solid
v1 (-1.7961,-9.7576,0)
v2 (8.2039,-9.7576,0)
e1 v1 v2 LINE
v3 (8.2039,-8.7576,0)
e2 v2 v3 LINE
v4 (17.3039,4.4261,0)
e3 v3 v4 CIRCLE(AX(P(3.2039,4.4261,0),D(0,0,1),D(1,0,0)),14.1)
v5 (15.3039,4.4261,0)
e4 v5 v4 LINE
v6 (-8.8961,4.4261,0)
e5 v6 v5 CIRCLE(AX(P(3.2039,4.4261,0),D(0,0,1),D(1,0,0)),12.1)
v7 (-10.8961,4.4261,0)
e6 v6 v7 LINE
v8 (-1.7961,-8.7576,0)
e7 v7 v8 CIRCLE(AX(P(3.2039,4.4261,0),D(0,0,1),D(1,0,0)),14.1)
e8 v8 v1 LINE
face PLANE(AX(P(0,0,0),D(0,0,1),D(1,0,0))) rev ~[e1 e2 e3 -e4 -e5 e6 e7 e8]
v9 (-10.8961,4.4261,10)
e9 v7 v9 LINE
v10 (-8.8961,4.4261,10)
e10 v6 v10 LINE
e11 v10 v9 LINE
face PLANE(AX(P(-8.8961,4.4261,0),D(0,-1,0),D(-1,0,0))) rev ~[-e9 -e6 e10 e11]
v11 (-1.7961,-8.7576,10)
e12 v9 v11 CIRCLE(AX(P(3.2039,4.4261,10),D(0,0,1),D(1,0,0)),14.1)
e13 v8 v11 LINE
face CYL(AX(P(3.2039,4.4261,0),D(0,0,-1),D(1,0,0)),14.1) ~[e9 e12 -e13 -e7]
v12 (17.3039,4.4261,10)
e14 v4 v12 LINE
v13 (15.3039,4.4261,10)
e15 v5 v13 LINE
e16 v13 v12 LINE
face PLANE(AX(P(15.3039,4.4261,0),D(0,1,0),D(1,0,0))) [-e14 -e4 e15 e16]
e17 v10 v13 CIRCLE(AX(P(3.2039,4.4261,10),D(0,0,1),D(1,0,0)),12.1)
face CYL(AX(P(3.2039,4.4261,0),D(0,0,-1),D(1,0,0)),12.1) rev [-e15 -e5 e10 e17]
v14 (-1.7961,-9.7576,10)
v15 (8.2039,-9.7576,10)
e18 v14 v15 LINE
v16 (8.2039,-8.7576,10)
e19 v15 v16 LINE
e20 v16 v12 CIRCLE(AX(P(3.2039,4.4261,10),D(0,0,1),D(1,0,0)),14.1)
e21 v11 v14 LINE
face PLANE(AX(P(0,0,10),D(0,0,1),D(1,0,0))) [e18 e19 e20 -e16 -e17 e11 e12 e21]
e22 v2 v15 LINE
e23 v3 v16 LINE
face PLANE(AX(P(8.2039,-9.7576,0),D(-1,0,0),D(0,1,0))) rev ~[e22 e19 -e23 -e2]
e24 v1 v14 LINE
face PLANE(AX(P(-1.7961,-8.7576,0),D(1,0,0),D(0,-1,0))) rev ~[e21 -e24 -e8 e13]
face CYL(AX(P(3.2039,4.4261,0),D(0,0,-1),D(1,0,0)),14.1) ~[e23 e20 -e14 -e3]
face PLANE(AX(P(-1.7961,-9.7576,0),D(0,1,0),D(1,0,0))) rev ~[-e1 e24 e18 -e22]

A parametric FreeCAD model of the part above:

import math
import FreeCAD as App
import Part
import Sketcher

V = App.Vector
Q = App.Units.Quantity

doc = App.newDocument("Part")
params = doc.addObject("Spreadsheet::Sheet", "Params")
for row, (alias, value) in enumerate([
    ("sketch1_radius", "14.1 mm"),
    ("sketch1_radius2", "12.1 mm"),
    ("sketch1_width", "10 mm"),
    ("sketch1_height", "1 mm"),
    ("pad1_length", "10 mm"),
], start=1):
    params.set(f"A{row}", alias)
    params.set(f"B{row}", "=" + value)
    params.setAlias(f"B{row}", alias)

body = doc.addObject("PartDesign::Body", "Body")

# Sketch on XY plane
sketch1 = body.newObject("Sketcher::SketchObject", "Sketch")
sketch1.AttachmentSupport = (doc.getObject("XY_Plane"), [""])
sketch1.MapMode = "FlatFace"
sketch1.addGeometry([
    Part.ArcOfCircle(Part.Circle(V(3.2, 4.4, 0), V(0, 0, 1), 14.1), math.radians(-69), math.radians(0)),  # 0
    Part.LineSegment(V(17.3, 4.4, 0), V(15.3, 4.4, 0)),  # 1
    Part.ArcOfCircle(Part.Circle(V(3.2, 4.4, 0), V(0, 0, 1), 12.1), math.radians(180), math.radians(360)),  # 2
    Part.LineSegment(V(-8.9, 4.4, 0), V(-10.9, 4.4, 0)),  # 3
    Part.ArcOfCircle(Part.Circle(V(3.2, 4.4, 0), V(0, 0, 1), 14.1), math.radians(180), math.radians(249)),  # 4
    Part.LineSegment(V(-1.8, -8.8, 0), V(-1.8, -9.8, 0)),  # 5
    Part.LineSegment(V(-1.8, -9.8, 0), V(8.2, -9.8, 0)),  # 6
    Part.LineSegment(V(8.2, -9.8, 0), V(8.2, -8.8, 0)),  # 7
], False)
sketch1.addConstraint([
    Sketcher.Constraint("Coincident", 0, 2, 1, 1),
    Sketcher.Constraint("Coincident", 1, 2, 2, 2),
    Sketcher.Constraint("Coincident", 2, 1, 3, 1),
    Sketcher.Constraint("Coincident", 3, 2, 4, 1),
    Sketcher.Constraint("Coincident", 4, 2, 5, 1),
    Sketcher.Constraint("Coincident", 5, 2, 6, 1),
    Sketcher.Constraint("Coincident", 6, 2, 7, 1),
    Sketcher.Constraint("Coincident", 7, 2, 0, 1),
    Sketcher.Constraint("Horizontal", 1),
    Sketcher.Constraint("Horizontal", 3),
    Sketcher.Constraint("Vertical", 5),
    Sketcher.Constraint("Horizontal", 6),
    Sketcher.Constraint("Vertical", 7),
    Sketcher.Constraint("Coincident", 2, 3, 0, 3),
    Sketcher.Constraint("Coincident", 4, 3, 0, 3),
    Sketcher.Constraint("Equal", 0, 4),
    Sketcher.Constraint("Horizontal", 4, 3, 0, 2),
    Sketcher.Constraint("Horizontal", 1, 2, 2, 1),
    Sketcher.Constraint("Horizontal", 4, 2, 7, 2),
    Sketcher.Constraint("Radius", 0, Q("14.1 mm")),
    Sketcher.Constraint("Radius", 2, Q("12.1 mm")),
    Sketcher.Constraint("DistanceX", 6, 1, 6, 2, Q("10 mm")),
    Sketcher.Constraint("DistanceY", 5, 2, 5, 1, Q("1 mm")),
    Sketcher.Constraint("DistanceX", -1, 1, 0, 3, Q("3.204 mm")),
    Sketcher.Constraint("DistanceY", -1, 1, 0, 3, Q("4.426 mm")),
])
sketch1.setExpression("Constraints[19]", "Params.sketch1_radius")
sketch1.setExpression("Constraints[20]", "Params.sketch1_radius2")
sketch1.setExpression("Constraints[21]", "Params.sketch1_width")
sketch1.setExpression("Constraints[22]", "Params.sketch1_height")
pad1 = body.newObject("PartDesign::Pad", "Pad")
pad1.Profile = sketch1
pad1.setExpression("Length", "Params.pad1_length")

doc.recompute()
